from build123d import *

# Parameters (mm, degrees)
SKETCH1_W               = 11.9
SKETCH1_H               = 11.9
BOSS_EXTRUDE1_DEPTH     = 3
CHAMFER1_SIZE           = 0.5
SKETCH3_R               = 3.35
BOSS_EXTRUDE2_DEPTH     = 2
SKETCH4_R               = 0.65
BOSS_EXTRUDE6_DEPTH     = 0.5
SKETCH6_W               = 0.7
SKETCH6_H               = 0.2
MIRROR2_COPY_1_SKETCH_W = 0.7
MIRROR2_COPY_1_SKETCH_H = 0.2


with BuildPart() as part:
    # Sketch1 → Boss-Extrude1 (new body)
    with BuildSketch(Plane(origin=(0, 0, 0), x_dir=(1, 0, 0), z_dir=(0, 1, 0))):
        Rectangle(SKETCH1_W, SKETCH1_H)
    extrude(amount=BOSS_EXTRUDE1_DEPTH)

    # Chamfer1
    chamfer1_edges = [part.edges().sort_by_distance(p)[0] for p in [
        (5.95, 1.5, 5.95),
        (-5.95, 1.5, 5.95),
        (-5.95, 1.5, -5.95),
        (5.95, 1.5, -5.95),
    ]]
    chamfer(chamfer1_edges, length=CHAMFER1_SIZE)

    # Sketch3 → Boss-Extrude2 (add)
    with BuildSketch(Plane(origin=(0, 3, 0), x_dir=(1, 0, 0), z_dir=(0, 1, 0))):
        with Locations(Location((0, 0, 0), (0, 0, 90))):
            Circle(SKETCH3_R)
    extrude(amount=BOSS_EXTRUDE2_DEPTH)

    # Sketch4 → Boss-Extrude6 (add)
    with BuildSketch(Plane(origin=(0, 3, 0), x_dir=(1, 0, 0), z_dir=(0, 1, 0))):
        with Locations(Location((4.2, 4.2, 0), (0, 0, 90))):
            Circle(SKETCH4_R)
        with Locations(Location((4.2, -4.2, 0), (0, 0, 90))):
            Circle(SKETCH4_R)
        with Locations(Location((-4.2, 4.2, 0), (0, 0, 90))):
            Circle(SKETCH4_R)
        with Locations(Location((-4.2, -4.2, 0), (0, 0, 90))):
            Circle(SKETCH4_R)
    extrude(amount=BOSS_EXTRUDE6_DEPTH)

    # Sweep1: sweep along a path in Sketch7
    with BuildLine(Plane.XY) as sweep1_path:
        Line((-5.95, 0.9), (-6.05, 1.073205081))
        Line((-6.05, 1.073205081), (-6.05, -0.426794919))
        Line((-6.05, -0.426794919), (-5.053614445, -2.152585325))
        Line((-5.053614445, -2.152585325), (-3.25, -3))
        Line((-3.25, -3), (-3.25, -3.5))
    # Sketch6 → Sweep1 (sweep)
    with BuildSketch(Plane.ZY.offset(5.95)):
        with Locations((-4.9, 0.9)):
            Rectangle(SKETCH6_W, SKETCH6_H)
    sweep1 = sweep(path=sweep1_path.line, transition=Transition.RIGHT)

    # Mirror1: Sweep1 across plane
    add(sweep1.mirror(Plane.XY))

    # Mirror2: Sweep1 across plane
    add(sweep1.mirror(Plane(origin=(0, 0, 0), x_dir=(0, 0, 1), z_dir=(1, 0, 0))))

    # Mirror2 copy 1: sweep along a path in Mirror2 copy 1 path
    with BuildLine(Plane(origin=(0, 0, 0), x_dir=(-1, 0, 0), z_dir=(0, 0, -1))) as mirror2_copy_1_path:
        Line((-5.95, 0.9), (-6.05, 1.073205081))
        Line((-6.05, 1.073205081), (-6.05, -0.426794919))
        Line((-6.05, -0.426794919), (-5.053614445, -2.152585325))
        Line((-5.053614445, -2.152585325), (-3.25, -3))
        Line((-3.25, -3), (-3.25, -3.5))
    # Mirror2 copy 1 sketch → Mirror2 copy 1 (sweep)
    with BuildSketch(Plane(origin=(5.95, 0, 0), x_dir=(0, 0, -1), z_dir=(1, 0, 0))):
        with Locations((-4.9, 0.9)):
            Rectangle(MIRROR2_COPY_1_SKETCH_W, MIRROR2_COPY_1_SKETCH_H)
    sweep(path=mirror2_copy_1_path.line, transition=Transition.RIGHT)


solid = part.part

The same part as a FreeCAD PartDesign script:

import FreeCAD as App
import Part
import Sketcher
Q = App.Units.Quantity


def edges_at(feature, points):
    """Names of the edges that pass closest to the given points."""
    edges = feature.Shape.Edges
    near = lambda p: min(range(len(edges)), key=lambda i: edges[i].distToShape(Part.Vertex(*p))[0])
    return sorted({f"Edge{near(p) + 1}" for p in points})


def add_polygon(sketch, points):
    """Adds a closed chain of lines whose ends are joined by coincident constraints."""
    first, n = sketch.GeometryCount, len(points)
    for a, b in zip(points, points[1:] + points[:1]):
        sketch.addGeometry(Part.LineSegment(App.Vector(*a, 0), App.Vector(*b, 0)), False)
    for i in range(n):
        sketch.addConstraint(Sketcher.Constraint("Coincident", first + i, 2, first + (i + 1) % n, 1))

doc = App.newDocument("Part")
params = doc.addObject("Spreadsheet::Sheet", "Params")
for row, (alias, value) in enumerate([
    ("sketch1_width", "11.9 mm"),
    ("pad1_length", "3 mm"),
    ("chamfer_size", "0.5 mm"),
    ("sketch2_diameter", "6.7 mm"),
    ("pad2_length", "2 mm"),
    ("sketch3_diameter", "1.3 mm"),
    ("pad3_length", "0.5 mm"),
    ("sketch4_width", "0.2 mm"),
    ("sketch4_height", "0.7 mm"),
    ("sketch5_height", "1.5 mm"),
    ("sketch5_height2", "0.5 mm"),
    ("sketch5_length", "0.2 mm"),
    ("sketch6_width", "0.2 mm"),
    ("sketch6_height", "0.7 mm"),
    ("sketch7_height", "1.5 mm"),
    ("sketch7_height2", "0.5 mm"),
    ("sketch7_length", "0.2 mm"),
], start=1):
    params.set(f"A{row}", alias)
    params.set(f"B{row}", "=" + value)
    params.setAlias(f"B{row}", alias)

body = doc.addObject("PartDesign::Body", "Body")

sketch1 = body.newObject("Sketcher::SketchObject", "Sketch")
sketch1.AttachmentSupport = (doc.getObject("XZ_Plane"), [""])
sketch1.MapMode = "FlatFace"
add_polygon(sketch1, [(-6, -6), (-6, 6), (6, 6), (6, -6)])
sketch1.addConstraint(Sketcher.Constraint("Vertical", 0))
sketch1.addConstraint(Sketcher.Constraint("Horizontal", 1))
sketch1.addConstraint(Sketcher.Constraint("Vertical", 2))
sketch1.addConstraint(Sketcher.Constraint("Horizontal", 3))
sketch1.addConstraint(Sketcher.Constraint("Symmetric", 0, 2, 2, 2, -1, 1))
sketch1.addConstraint(Sketcher.Constraint("Equal", 3, 0))
sketch1.addConstraint(Sketcher.Constraint("DistanceX", 1, 1, 1, 2, 11.9))
sketch1.setExpression("Constraints[10]", "Params.sketch1_width")
pad1 = body.newObject("PartDesign::Pad", "Pad")
pad1.Profile = sketch1
pad1.setExpression("Length", "Params.pad1_length")
pad1.Reversed = True
doc.recompute()

chamfer = body.newObject("PartDesign::Chamfer", "Chamfer")
chamfer.Base = (pad1, edges_at(pad1, [
    (5.95, 1.5, 5.95),
    (-5.95, 1.5, 5.95),
    (-5.95, 1.5, -5.95),
    (5.95, 1.5, -5.95),
]))
chamfer.setExpression("Size", "Params.chamfer_size")

sketch2 = body.newObject("Sketcher::SketchObject", "Sketch001")
sketch2.AttachmentSupport = (doc.getObject("XZ_Plane"), [""])
sketch2.MapMode = "FlatFace"
sketch2.AttachmentOffset = App.Placement(App.Vector(0, 0, -3), App.Rotation())
sketch2.addGeometry(Part.Circle(App.Vector(0, 0, 0), App.Vector(0, 0, 1), 3.4), False)
sketch2.addConstraint(Sketcher.Constraint("Coincident", 0, 3, -1, 1))
sketch2.addConstraint(Sketcher.Constraint("Diameter", 0, 6.7))
sketch2.setExpression("Constraints[1]", "Params.sketch2_diameter")
pad2 = body.newObject("PartDesign::Pad", "Pad001")
pad2.Profile = sketch2
pad2.setExpression("Length", "Params.pad2_length")
pad2.Reversed = True

sketch3 = body.newObject("Sketcher::SketchObject", "Sketch002")
sketch3.AttachmentSupport = (doc.getObject("XZ_Plane"), [""])
sketch3.MapMode = "FlatFace"
sketch3.AttachmentOffset = App.Placement(App.Vector(0, 0, -3), App.Rotation())
sketch3.addGeometry(Part.Circle(App.Vector(4.2, -4.2, 0), App.Vector(0, 0, 1), 0.7), False)
sketch3.addGeometry(Part.Circle(App.Vector(4.2, 4.2, 0), App.Vector(0, 0, 1), 0.7), False)
sketch3.addGeometry(Part.Circle(App.Vector(-4.2, -4.2, 0), App.Vector(0, 0, 1), 0.7), False)
sketch3.addGeometry(Part.Circle(App.Vector(-4.2, 4.2, 0), App.Vector(0, 0, 1), 0.7), False)
sketch3.addConstraint(Sketcher.Constraint("Equal", 0, 1))
sketch3.addConstraint(Sketcher.Constraint("Equal", 1, 2))
sketch3.addConstraint(Sketcher.Constraint("Equal", 2, 3))
sketch3.addConstraint(Sketcher.Constraint("Symmetric", 1, 3, 2, 3, -1, 1))
sketch3.addConstraint(Sketcher.Constraint("Symmetric", 0, 3, 3, 3, -1, 1))
sketch3.addConstraint(Sketcher.Constraint("Symmetric", 0, 3, 2, 3, -2))
sketch3.addConstraint(Sketcher.Constraint("Diameter", 0, 1.3))
sketch3.addConstraint(Sketcher.Constraint("DistanceX", -1, 1, 0, 3, 4.2))
sketch3.addConstraint(Sketcher.Constraint("DistanceY", 0, 3, -1, 1, 4.2))
sketch3.setExpression("Constraints[6]", "Params.sketch3_diameter")
pad3 = body.newObject("PartDesign::Pad", "Pad002")
pad3.Profile = sketch3
pad3.setExpression("Length", "Params.pad3_length")
pad3.Reversed = True

sketch4 = body.newObject("Sketcher::SketchObject", "Sketch003")
sketch4.AttachmentSupport = (doc.getObject("YZ_Plane"), [""])
sketch4.MapMode = "FlatFace"
sketch4.AttachmentOffset = App.Placement(App.Vector(0, 0, -5.95), App.Rotation())
add_polygon(sketch4, [(1, -5.25), (0.8, -5.25), (0.8, -4.55), (1, -4.55)])
sketch4.addConstraint(Sketcher.Constraint("Horizontal", 0))
sketch4.addConstraint(Sketcher.Constraint("Vertical", 1))
sketch4.addConstraint(Sketcher.Constraint("Horizontal", 2))
sketch4.addConstraint(Sketcher.Constraint("Vertical", 3))
sketch4.addConstraint(Sketcher.Constraint("DistanceX", 0, 2, 0, 1, 0.2))
sketch4.addConstraint(Sketcher.Constraint("DistanceY", 1, 1, 1, 2, 0.7))
sketch4.addConstraint(Sketcher.Constraint("DistanceX", -1, 1, 2, 2, 1.0))
sketch4.addConstraint(Sketcher.Constraint("DistanceY", 0, 2, -1, 1, 5.25))
sketch4.setExpression("Constraints[8]", "Params.sketch4_width")
sketch4.setExpression("Constraints[9]", "Params.sketch4_height")

sketch5 = body.newObject("Sketcher::SketchObject", "Sketch004")
sketch5.AttachmentSupport = (doc.getObject("XY_Plane"), [""])
sketch5.MapMode = "FlatFace"
sketch5.addGeometry(Part.LineSegment(App.Vector(-5.95, 0.9, 0), App.Vector(-6.05, 1.07, 0)), False)
sketch5.addGeometry(Part.LineSegment(App.Vector(-6.05, 1.07, 0), App.Vector(-6.05, -0.43, 0)), False)
sketch5.addGeometry(Part.LineSegment(App.Vector(-6.05, -0.43, 0), App.Vector(-5.05, -2.15, 0)), False)
sketch5.addGeometry(Part.LineSegment(App.Vector(-5.05, -2.15, 0), App.Vector(-3.25, -3, 0)), False)
sketch5.addGeometry(Part.LineSegment(App.Vector(-3.25, -3, 0), App.Vector(-3.25, -3.5, 0)), False)
sketch5.addConstraint(Sketcher.Constraint("Coincident", 0, 2, 1, 1))
sketch5.addConstraint(Sketcher.Constraint("Coincident", 1, 2, 2, 1))
sketch5.addConstraint(Sketcher.Constraint("Coincident", 2, 2, 3, 1))
sketch5.addConstraint(Sketcher.Constraint("Coincident", 3, 2, 4, 1))
sketch5.addConstraint(Sketcher.Constraint("Vertical", 1))
sketch5.addConstraint(Sketcher.Constraint("Vertical", 4))
sketch5.addConstraint(Sketcher.Constraint("Parallel", 0, 2))
sketch5.addConstraint(Sketcher.Constraint("Equal", 2, 3))
sketch5.addConstraint(Sketcher.Constraint("Angle", 0, Q("120 deg")))
sketch5.addConstraint(Sketcher.Constraint("DistanceY", 1, 2, 1, 1, 1.5))
sketch5.addConstraint(Sketcher.Constraint("DistanceY", 4, 2, 4, 1, 0.5))
sketch5.addConstraint(Sketcher.Constraint("DistanceY", 3, 2, -1, 1, 3.0))
sketch5.addConstraint(Sketcher.Constraint("Distance", 0, 0.2))
sketch5.addConstraint(Sketcher.Constraint("DistanceY", -1, 1, 0, 1, 0.9))
sketch5.addConstraint(Sketcher.Constraint("DistanceX", 1, 2, 3, 2, 2.8))
sketch5.addConstraint(Sketcher.Constraint("DistanceX", 0, 1, -1, 1, 5.95))
sketch5.setExpression("Constraints[9]", "Params.sketch5_height")
sketch5.setExpression("Constraints[10]", "Params.sketch5_height2")
sketch5.setExpression("Constraints[12]", "Params.sketch5_length")
doc.recompute()

additivepipe = body.newObject("PartDesign::AdditivePipe", "AdditivePipe")
additivepipe.Profile = sketch4
additivepipe.Spine = (sketch5, ["Edge1", "Edge2", "Edge3", "Edge4", "Edge5"])
additivepipe.Transition = "Right corner"
doc.recompute()

mirrored = body.newObject("PartDesign::Mirrored", "Mirrored")
mirrored.Originals = [additivepipe]
mirrored.MirrorPlane = (doc.getObject("XY_Plane"), [""])
body.Tip = mirrored
doc.recompute()

mirrored2 = body.newObject("PartDesign::Mirrored", "Mirrored001")
mirrored2.Originals = [additivepipe]
mirrored2.MirrorPlane = (doc.getObject("YZ_Plane"), [""])
body.Tip = mirrored2

sketch6 = body.newObject("Sketcher::SketchObject", "Sketch005")
sketch6.AttachmentSupport = (doc.getObject("YZ_Plane"), [""])
sketch6.MapMode = "FlatFace"
sketch6.AttachmentOffset = App.Placement(App.Vector(0, 0, 5.95), App.Rotation())
add_polygon(sketch6, [(1, 5.25), (0.8, 5.25), (0.8, 4.55), (1, 4.55)])
sketch6.addConstraint(Sketcher.Constraint("Horizontal", 0))
sketch6.addConstraint(Sketcher.Constraint("Vertical", 1))
sketch6.addConstraint(Sketcher.Constraint("Horizontal", 2))
sketch6.addConstraint(Sketcher.Constraint("Vertical", 3))
sketch6.addConstraint(Sketcher.Constraint("DistanceX", 0, 2, 0, 1, 0.2))
sketch6.addConstraint(Sketcher.Constraint("DistanceY", 1, 2, 1, 1, 0.7))
sketch6.addConstraint(Sketcher.Constraint("DistanceX", -1, 1, 2, 2, 1.0))
sketch6.addConstraint(Sketcher.Constraint("DistanceY", -1, 1, 0, 2, 5.25))
sketch6.setExpression("Constraints[8]", "Params.sketch6_width")
sketch6.setExpression("Constraints[9]", "Params.sketch6_height")

sketch7 = body.newObject("Sketcher::SketchObject", "Sketch006")
sketch7.AttachmentSupport = (doc.getObject("XY_Plane"), [""])
sketch7.MapMode = "FlatFace"
sketch7.addGeometry(Part.LineSegment(App.Vector(5.95, 0.9, 0), App.Vector(6.05, 1.07, 0)), False)
sketch7.addGeometry(Part.LineSegment(App.Vector(6.05, 1.07, 0), App.Vector(6.05, -0.43, 0)), False)
sketch7.addGeometry(Part.LineSegment(App.Vector(6.05, -0.43, 0), App.Vector(5.05, -2.15, 0)), False)
sketch7.addGeometry(Part.LineSegment(App.Vector(5.05, -2.15, 0), App.Vector(3.25, -3, 0)), False)
sketch7.addGeometry(Part.LineSegment(App.Vector(3.25, -3, 0), App.Vector(3.25, -3.5, 0)), False)
sketch7.addConstraint(Sketcher.Constraint("Coincident", 0, 2, 1, 1))
sketch7.addConstraint(Sketcher.Constraint("Coincident", 1, 2, 2, 1))
sketch7.addConstraint(Sketcher.Constraint("Coincident", 2, 2, 3, 1))
sketch7.addConstraint(Sketcher.Constraint("Coincident", 3, 2, 4, 1))
sketch7.addConstraint(Sketcher.Constraint("Vertical", 1))
sketch7.addConstraint(Sketcher.Constraint("Vertical", 4))
sketch7.addConstraint(Sketcher.Constraint("Parallel", 0, 2))
sketch7.addConstraint(Sketcher.Constraint("Equal", 2, 3))
sketch7.addConstraint(Sketcher.Constraint("Angle", 0, Q("60 deg")))
sketch7.addConstraint(Sketcher.Constraint("DistanceY", 1, 2, 1, 1, 1.5))
sketch7.addConstraint(Sketcher.Constraint("DistanceY", 4, 2, 4, 1, 0.5))
sketch7.addConstraint(Sketcher.Constraint("DistanceY", 3, 2, -1, 1, 3.0))
sketch7.addConstraint(Sketcher.Constraint("Distance", 0, 0.2))
sketch7.addConstraint(Sketcher.Constraint("DistanceY", -1, 1, 0, 1, 0.9))
sketch7.addConstraint(Sketcher.Constraint("DistanceX", 3, 2, 1, 2, 2.8))
sketch7.addConstraint(Sketcher.Constraint("DistanceX", -1, 1, 0, 1, 5.95))
sketch7.setExpression("Constraints[9]", "Params.sketch7_height")
sketch7.setExpression("Constraints[10]", "Params.sketch7_height2")
sketch7.setExpression("Constraints[12]", "Params.sketch7_length")
doc.recompute()

additivepipe2 = body.newObject("PartDesign::AdditivePipe", "AdditivePipe001")
additivepipe2.Profile = sketch6
additivepipe2.Spine = (sketch7, ["Edge1", "Edge2", "Edge3", "Edge4", "Edge5"])
additivepipe2.Transition = "Right corner"

doc.recompute()
